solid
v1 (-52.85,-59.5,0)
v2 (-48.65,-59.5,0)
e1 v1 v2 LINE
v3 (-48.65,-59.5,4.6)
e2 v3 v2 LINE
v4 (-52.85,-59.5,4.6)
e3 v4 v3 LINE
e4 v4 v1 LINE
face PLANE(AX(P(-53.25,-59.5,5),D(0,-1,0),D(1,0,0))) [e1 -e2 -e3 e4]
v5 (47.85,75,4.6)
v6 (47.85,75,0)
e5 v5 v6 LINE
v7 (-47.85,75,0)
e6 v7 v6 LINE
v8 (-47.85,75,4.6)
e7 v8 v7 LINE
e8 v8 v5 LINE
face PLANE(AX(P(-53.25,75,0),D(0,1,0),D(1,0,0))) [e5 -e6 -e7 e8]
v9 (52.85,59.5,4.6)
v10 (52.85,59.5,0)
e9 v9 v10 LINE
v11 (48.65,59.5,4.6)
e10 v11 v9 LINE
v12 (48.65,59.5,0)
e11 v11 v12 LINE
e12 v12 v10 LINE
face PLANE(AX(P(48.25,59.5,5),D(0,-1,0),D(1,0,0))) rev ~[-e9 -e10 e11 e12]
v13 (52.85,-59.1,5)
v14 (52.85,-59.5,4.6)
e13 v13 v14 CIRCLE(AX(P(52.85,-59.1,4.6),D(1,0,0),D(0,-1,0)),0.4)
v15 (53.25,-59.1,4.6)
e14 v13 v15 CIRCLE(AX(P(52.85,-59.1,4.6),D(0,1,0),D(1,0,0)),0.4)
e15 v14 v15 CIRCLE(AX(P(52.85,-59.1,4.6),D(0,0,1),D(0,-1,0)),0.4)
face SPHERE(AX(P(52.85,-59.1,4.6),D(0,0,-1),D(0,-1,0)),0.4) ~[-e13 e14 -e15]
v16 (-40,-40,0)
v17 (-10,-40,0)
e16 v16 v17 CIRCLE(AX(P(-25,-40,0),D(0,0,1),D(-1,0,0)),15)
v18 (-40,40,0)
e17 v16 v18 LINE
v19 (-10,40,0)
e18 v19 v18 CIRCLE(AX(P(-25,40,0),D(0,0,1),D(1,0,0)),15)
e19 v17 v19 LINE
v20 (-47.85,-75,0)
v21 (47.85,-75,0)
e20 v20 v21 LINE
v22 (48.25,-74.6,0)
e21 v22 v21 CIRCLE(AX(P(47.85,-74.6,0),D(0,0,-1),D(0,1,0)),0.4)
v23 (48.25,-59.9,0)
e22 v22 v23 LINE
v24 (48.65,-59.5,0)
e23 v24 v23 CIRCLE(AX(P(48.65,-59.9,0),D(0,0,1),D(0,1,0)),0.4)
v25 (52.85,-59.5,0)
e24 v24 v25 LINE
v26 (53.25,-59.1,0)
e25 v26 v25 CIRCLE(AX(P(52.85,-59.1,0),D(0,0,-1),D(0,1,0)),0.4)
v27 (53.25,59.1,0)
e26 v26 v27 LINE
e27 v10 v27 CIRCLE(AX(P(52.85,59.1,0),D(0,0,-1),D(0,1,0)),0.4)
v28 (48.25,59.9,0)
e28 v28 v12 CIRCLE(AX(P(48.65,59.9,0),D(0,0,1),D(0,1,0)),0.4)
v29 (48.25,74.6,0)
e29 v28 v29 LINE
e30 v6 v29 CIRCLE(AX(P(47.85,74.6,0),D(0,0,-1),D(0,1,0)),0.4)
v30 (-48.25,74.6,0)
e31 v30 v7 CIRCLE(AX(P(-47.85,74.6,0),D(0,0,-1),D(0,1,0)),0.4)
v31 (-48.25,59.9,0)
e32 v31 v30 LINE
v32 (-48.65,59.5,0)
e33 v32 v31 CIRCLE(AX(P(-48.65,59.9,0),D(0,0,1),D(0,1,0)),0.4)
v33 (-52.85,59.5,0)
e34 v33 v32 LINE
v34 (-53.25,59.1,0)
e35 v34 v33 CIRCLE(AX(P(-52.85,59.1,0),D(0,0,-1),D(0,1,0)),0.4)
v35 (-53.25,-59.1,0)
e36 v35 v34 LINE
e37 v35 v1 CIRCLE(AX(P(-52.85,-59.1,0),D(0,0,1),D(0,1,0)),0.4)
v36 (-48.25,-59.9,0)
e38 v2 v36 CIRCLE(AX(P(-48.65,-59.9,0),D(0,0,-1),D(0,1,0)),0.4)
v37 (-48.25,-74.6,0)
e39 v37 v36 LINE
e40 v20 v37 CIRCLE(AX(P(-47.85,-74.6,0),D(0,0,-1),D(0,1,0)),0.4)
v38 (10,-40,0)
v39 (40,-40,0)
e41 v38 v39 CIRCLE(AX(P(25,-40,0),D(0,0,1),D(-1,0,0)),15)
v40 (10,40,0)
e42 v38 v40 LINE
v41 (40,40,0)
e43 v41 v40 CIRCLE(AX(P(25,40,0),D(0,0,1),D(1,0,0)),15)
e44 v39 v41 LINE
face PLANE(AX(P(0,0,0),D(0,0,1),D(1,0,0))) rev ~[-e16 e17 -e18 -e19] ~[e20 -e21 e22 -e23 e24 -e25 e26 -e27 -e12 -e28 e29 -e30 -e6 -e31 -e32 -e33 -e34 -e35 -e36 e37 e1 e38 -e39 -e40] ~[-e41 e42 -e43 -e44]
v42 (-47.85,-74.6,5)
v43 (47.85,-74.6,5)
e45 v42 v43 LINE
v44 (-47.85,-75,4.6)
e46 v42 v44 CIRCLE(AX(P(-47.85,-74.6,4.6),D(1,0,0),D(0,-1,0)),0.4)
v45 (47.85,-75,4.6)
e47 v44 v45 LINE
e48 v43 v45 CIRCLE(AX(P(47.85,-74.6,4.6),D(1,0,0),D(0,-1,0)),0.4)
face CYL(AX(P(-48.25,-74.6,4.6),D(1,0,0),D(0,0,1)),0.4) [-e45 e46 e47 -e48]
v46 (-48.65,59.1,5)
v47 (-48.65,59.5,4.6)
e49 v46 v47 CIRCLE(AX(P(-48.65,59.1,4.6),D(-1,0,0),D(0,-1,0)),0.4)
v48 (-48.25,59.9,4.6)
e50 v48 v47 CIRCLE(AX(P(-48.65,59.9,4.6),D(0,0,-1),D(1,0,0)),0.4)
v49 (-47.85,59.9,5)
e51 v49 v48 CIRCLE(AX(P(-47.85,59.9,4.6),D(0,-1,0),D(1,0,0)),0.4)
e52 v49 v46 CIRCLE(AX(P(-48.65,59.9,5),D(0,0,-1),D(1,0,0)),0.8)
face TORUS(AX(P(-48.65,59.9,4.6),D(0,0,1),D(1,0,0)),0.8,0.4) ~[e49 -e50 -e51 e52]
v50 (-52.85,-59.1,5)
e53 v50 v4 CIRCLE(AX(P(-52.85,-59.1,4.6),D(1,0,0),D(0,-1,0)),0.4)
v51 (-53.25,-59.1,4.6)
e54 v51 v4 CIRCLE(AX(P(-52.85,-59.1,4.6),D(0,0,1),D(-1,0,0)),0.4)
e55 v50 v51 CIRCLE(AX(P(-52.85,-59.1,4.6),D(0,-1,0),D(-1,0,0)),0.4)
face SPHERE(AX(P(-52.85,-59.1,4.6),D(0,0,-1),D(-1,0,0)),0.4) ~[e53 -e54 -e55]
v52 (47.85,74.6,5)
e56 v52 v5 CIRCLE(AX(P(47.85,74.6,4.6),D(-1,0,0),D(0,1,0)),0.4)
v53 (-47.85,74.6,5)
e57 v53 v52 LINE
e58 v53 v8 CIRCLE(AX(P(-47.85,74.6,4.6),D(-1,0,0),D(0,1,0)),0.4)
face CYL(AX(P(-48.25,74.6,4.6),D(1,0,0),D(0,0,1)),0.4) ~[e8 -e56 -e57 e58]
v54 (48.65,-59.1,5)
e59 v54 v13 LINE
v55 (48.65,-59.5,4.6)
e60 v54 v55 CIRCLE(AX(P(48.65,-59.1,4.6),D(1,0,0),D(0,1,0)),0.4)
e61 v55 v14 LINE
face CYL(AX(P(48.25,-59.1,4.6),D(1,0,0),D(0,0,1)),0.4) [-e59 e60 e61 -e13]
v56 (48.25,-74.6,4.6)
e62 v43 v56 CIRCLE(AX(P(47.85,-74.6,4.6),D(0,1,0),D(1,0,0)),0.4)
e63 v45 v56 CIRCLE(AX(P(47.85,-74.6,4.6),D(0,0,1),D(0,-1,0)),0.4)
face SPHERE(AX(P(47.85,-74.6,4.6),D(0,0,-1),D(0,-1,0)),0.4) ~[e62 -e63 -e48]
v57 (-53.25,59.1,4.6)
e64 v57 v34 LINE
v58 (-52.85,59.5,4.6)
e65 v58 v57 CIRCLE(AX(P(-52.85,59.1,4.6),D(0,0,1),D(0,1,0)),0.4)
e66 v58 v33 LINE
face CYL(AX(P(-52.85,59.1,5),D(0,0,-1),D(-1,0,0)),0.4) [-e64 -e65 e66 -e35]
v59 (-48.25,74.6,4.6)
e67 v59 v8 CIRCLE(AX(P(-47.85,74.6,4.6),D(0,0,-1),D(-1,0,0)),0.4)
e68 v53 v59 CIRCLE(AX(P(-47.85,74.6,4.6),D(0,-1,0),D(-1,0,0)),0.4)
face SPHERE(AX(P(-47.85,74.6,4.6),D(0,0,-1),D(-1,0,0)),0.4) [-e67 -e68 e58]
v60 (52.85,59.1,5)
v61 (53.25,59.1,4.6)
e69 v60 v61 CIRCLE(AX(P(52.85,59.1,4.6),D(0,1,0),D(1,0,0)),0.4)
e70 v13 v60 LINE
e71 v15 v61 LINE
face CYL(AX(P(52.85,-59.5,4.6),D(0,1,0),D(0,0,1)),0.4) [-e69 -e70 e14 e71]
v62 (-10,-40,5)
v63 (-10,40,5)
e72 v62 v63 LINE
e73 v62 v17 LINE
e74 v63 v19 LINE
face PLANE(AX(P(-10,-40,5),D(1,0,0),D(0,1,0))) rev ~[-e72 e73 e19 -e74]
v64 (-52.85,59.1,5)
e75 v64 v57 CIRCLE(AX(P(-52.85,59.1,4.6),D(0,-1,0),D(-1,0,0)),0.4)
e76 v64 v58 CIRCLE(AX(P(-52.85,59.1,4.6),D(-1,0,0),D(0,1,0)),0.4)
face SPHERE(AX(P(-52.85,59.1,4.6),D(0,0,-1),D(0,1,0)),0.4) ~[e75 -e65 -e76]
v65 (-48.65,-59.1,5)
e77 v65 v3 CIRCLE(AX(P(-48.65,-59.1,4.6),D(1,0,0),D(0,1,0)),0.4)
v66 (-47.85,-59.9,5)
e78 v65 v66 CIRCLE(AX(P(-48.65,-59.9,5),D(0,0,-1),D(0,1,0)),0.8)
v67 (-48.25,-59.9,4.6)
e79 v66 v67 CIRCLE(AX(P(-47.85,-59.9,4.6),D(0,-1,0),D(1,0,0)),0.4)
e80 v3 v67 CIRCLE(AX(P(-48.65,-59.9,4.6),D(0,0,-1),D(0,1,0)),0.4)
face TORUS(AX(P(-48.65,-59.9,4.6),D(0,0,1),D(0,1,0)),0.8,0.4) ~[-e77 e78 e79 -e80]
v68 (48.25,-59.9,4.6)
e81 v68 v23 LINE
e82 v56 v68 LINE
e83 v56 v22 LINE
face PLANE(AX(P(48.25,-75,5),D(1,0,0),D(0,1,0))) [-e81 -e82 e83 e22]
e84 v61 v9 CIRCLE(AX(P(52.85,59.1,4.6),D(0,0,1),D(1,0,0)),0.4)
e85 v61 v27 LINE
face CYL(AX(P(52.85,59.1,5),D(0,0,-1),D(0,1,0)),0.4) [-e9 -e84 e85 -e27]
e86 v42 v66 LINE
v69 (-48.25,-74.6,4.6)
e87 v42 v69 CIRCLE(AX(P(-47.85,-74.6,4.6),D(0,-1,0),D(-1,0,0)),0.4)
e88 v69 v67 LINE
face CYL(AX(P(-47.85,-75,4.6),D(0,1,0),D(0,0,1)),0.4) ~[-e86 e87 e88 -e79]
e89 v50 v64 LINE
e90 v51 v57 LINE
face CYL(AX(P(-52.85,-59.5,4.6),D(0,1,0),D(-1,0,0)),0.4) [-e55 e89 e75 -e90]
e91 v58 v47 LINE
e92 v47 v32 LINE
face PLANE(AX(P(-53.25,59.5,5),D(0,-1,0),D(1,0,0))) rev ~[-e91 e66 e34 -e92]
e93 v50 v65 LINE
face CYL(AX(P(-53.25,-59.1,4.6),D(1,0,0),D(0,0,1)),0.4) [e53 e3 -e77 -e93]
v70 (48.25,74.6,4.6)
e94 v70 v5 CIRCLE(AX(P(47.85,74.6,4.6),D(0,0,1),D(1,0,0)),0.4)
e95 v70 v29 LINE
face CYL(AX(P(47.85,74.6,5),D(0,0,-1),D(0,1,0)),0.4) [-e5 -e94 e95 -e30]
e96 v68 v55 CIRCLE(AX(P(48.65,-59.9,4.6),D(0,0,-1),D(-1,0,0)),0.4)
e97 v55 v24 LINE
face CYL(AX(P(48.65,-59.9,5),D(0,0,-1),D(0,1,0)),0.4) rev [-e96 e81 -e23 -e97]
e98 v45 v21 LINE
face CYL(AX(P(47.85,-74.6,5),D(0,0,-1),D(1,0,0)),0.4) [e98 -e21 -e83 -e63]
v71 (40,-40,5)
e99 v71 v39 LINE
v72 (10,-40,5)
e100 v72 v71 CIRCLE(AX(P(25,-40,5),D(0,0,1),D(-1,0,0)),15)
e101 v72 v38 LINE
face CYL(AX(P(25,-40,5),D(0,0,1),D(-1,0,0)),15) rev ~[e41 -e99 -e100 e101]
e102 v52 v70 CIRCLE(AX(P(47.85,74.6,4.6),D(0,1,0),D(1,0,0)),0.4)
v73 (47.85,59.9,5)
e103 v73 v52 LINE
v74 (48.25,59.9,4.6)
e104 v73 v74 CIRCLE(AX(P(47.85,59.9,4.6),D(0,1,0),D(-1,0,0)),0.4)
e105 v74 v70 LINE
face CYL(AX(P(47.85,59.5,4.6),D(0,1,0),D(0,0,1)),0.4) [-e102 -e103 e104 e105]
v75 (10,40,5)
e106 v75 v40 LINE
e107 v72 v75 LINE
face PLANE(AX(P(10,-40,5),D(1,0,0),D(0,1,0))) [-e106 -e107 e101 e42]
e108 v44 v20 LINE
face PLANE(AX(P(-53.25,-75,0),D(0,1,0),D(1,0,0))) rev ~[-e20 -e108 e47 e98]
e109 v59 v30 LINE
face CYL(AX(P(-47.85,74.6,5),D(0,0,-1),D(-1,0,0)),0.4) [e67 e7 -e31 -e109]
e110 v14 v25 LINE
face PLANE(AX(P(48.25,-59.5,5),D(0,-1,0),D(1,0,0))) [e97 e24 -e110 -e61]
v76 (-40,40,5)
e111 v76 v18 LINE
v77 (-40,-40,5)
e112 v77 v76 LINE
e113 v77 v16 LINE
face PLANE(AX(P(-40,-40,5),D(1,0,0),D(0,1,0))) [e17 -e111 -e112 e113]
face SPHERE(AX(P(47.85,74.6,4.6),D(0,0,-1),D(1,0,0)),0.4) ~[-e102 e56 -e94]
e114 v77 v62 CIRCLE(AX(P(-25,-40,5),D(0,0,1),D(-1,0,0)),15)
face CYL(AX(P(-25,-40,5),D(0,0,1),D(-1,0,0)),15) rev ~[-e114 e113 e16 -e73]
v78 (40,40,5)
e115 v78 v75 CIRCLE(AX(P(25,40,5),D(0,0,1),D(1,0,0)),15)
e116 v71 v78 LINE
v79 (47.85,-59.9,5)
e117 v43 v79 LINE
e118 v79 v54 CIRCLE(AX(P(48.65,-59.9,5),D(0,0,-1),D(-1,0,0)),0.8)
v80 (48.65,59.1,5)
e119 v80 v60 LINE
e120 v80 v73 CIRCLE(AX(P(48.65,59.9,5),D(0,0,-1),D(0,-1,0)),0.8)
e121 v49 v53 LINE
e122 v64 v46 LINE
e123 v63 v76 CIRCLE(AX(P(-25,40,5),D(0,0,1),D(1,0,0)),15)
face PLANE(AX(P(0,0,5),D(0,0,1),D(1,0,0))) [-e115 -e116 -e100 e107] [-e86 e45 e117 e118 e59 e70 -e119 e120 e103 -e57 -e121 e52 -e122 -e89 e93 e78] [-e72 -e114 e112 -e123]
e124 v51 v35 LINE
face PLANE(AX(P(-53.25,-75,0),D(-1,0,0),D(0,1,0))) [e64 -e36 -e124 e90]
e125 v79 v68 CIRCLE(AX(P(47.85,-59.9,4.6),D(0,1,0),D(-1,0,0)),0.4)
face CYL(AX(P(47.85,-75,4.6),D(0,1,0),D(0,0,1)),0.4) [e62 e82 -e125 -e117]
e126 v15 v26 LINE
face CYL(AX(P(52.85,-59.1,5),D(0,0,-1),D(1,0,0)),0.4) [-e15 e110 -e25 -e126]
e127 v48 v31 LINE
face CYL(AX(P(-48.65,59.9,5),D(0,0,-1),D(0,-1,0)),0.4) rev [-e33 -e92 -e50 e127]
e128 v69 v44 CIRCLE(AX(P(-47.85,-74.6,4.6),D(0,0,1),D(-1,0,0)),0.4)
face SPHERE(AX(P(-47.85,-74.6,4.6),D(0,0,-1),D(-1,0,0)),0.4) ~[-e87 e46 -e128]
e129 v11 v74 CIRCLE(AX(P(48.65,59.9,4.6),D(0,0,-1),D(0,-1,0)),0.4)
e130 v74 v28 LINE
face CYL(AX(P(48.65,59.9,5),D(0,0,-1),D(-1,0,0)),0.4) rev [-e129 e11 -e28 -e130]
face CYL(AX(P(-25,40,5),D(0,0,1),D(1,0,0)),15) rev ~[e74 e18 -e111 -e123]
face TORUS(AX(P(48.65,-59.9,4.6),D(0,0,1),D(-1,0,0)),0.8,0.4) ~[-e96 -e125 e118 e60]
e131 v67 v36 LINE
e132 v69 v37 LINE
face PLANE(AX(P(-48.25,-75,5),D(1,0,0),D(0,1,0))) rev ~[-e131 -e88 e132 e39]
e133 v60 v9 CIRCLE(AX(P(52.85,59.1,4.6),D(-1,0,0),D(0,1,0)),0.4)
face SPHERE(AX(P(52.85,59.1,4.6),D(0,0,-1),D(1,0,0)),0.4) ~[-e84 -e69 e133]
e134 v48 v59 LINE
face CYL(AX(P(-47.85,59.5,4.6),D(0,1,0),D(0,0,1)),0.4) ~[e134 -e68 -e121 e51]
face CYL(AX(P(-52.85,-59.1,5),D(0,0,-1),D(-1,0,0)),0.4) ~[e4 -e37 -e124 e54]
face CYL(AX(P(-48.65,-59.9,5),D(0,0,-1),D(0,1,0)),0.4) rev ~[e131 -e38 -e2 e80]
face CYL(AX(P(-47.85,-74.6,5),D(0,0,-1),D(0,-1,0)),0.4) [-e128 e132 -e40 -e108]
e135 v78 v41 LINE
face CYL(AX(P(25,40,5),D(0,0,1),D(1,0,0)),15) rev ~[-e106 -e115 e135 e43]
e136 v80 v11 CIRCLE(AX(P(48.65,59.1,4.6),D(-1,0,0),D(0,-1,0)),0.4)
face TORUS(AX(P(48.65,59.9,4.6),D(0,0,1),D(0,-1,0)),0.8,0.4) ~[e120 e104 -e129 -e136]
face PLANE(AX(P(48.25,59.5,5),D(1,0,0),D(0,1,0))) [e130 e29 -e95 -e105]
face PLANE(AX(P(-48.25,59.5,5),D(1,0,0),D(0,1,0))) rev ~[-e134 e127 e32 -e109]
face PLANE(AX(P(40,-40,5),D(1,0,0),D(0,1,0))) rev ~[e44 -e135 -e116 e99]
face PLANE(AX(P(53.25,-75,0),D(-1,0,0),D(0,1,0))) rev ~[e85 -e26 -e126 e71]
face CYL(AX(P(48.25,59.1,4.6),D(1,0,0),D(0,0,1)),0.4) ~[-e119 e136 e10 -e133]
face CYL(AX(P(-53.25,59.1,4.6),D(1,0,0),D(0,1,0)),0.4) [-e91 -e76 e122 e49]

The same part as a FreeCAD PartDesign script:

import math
import FreeCAD as App
import Part
import Sketcher
from FreeCAD import Vector


def edges_at(feature, points):
    """Names of the edges that pass closest to the given points."""
    edges = feature.Shape.Edges
    near = lambda p: min(range(len(edges)), key=lambda i: edges[i].distToShape(Part.Vertex(*p))[0])
    return sorted({f"Edge{near(p) + 1}" for p in points})


def add_polygon(sketch, points):
    """Adds a closed chain of lines whose ends are joined by coincident constraints."""
    first, n = sketch.GeometryCount, len(points)
    for a, b in zip(points, points[1:] + points[:1]):
        sketch.addGeometry(Part.LineSegment(App.Vector(*a, 0), App.Vector(*b, 0)), False)
    for i in range(n):
        sketch.addConstraint(Sketcher.Constraint("Coincident", first + i, 2, first + (i + 1) % n, 1))

doc = App.newDocument("Part")
body = doc.addObject("PartDesign::Body", "Body")

sketch1 = body.newObject("Sketcher::SketchObject", "Sketch")
sketch1.AttachmentSupport = (doc.getObject("XY_Plane"), [""])
sketch1.MapMode = "FlatFace"
add_polygon(sketch1, [(-53.25, 75), (-53.25, -75), (53.25, -75), (53.25, 75)])
sketch1.addConstraint([
    Sketcher.Constraint("Vertical", 0),
    Sketcher.Constraint("Horizontal", 1),
    Sketcher.Constraint("Vertical", 2),
    Sketcher.Constraint("Horizontal", 3),
    Sketcher.Constraint("Symmetric", 0, 2, 2, 2, -1, 1),
    Sketcher.Constraint("DistanceY", 0, 2, 0, 1, 150.0),
    Sketcher.Constraint("DistanceX", 1, 1, 1, 2, 106.5),
])
pad1 = body.newObject("PartDesign::Pad", "Pad")
pad1.Profile = sketch1
pad1.Length = 5

sketch2 = body.newObject("Sketcher::SketchObject", "Sketch001")
sketch2.AttachmentSupport = (doc.getObject("XY_Plane"), [""])
sketch2.MapMode = "FlatFace"
sketch2.AttachmentOffset = App.Placement(Vector(0, 0, 5), App.Rotation())
add_polygon(sketch2, [(-53.25, 75), (-53.25, 59.5), (-48.25, 59.5), (-48.25, 75)])
add_polygon(sketch2, [(48.25, 75), (48.25, 59.5), (53.25, 59.5), (53.25, 75)])
add_polygon(sketch2, [(48.25, -59.5), (48.25, -75), (53.25, -75), (53.25, -59.5)])
add_polygon(sketch2, [(-53.25, -59.5), (-53.25, -75), (-48.25, -75), (-48.25, -59.5)])
sketch2.addConstraint([
    Sketcher.Constraint("Vertical", 0),
    Sketcher.Constraint("Horizontal", 1),
    Sketcher.Constraint("Vertical", 2),
    Sketcher.Constraint("Horizontal", 3),
    Sketcher.Constraint("Vertical", 4),
    Sketcher.Constraint("Horizontal", 5),
    Sketcher.Constraint("Vertical", 6),
    Sketcher.Constraint("Horizontal", 7),
    Sketcher.Constraint("Vertical", 8),
    Sketcher.Constraint("Horizontal", 9),
    Sketcher.Constraint("Vertical", 10),
    Sketcher.Constraint("Horizontal", 11),
    Sketcher.Constraint("Vertical", 12),
    Sketcher.Constraint("Horizontal", 13),
    Sketcher.Constraint("Vertical", 14),
    Sketcher.Constraint("Horizontal", 15),
    Sketcher.Constraint("Symmetric", 2, 2, 8, 2, -1, 1),
    Sketcher.Constraint("Symmetric", 0, 2, 10, 2, -1, 1),
    Sketcher.Constraint("Symmetric", 6, 2, 12, 2, -1, 1),
    Sketcher.Constraint("Symmetric", 4, 2, 14, 2, -1, 1),
    Sketcher.Constraint("Symmetric", 1, 2, 4, 2, -2),
    Sketcher.Constraint("Symmetric", 3, 2, 6, 2, -2),
    Sketcher.Constraint("DistanceX", 1, 1, 1, 2, 5.0),
    Sketcher.Constraint("DistanceY", 0, 2, 0, 1, 15.5),
    Sketcher.Constraint("DistanceY", -1, 1, 2, 2, 75.0),
    Sketcher.Constraint("DistanceX", 1, 2, 4, 2, 96.5),
])
pocket1 = body.newObject("PartDesign::Pocket", "Pocket")
pocket1.Profile = sketch2
pocket1.Length = 5
doc.recompute()

fillet = body.newObject("PartDesign::Fillet", "Fillet")
fillet.Base = (pocket1, edges_at(pocket1, [
    (-48.25, 75, 2.5),
    (-48.25, 59.5, 2.5),
    (-53.25, 59.5, 2.5),
    (48.25, 75, 2.5),
    (48.25, 59.5, 2.5),
    (53.25, 59.5, 2.5),
    (53.25, -59.5, 2.5),
    (48.25, -59.5, 2.5),
    (48.25, -75, 2.5),
    (-48.25, -75, 2.5),
    (-48.25, -59.5, 2.5),
    (-53.25, -59.5, 2.5),
    (-48.25, 67.25, 5),
    (-50.75, 59.5, 5),
    (-53.25, 0, 5),
    (-50.75, -59.5, 5),
    (-48.25, -67.25, 5),
    (0, -75, 5),
    (48.25, -67.25, 5),
    (50.75, -59.5, 5),
    (53.25, 0, 5),
    (50.75, 59.5, 5),
    (48.25, 67.25, 5),
    (0, 75, 5),
]))
fillet.Radius = 0.4

sketch3 = body.newObject("Sketcher::SketchObject", "Sketch002")
sketch3.AttachmentSupport = (doc.getObject("XY_Plane"), [""])
sketch3.MapMode = "FlatFace"
sketch3.AttachmentOffset = App.Placement(Vector(0, 0, 5), App.Rotation())
sketch3.addGeometry([
    Part.ArcOfCircle(Part.Circle(Vector(-25, -40, 0), Vector(0, 0, 1), 15), math.radians(180), math.radians(360)),
    Part.LineSegment(Vector(-10, -40, 0), Vector(-10, 40, 0)),
    Part.ArcOfCircle(Part.Circle(Vector(-25, 40, 0), Vector(0, 0, 1), 15), math.radians(0), math.radians(180)),
    Part.LineSegment(Vector(-40, 40, 0), Vector(-40, -40, 0)),
    Part.ArcOfCircle(Part.Circle(Vector(25, -40, 0), Vector(0, 0, 1), 15), math.radians(180), math.radians(360)),
    Part.LineSegment(Vector(40, -40, 0), Vector(40, 40, 0)),
    Part.ArcOfCircle(Part.Circle(Vector(25, 40, 0), Vector(0, 0, 1), 15), math.radians(0), math.radians(180)),
    Part.LineSegment(Vector(10, 40, 0), Vector(10, -40, 0)),
], False)
sketch3.addConstraint([
    Sketcher.Constraint("Tangent", 0, 2, 1, 1),
    Sketcher.Constraint("Tangent", 1, 2, 2, 1),
    Sketcher.Constraint("Tangent", 2, 2, 3, 1),
    Sketcher.Constraint("Tangent", 3, 2, 0, 1),
    Sketcher.Constraint("Tangent", 4, 2, 5, 1),
    Sketcher.Constraint("Tangent", 5, 2, 6, 1),
    Sketcher.Constraint("Tangent", 6, 2, 7, 1),
    Sketcher.Constraint("Tangent", 7, 2, 4, 1),
    Sketcher.Constraint("Vertical", 1),
    Sketcher.Constraint("Vertical", 3),
    Sketcher.Constraint("Vertical", 5),
    Sketcher.Constraint("Vertical", 7),
    Sketcher.Constraint("Equal", 2, 4),
    Sketcher.Constraint("Symmetric", 2, 3, 4, 3, -1, 1),
    Sketcher.Constraint("Horizontal", 0, 3, 4, 3),
    Sketcher.Constraint("Horizontal", 2, 3, 6, 3),
    Sketcher.Constraint("Radius", 0, 15.0),
    Sketcher.Constraint("DistanceY", 1, 1, 1, 2, 80.0),
    Sketcher.Constraint("DistanceX", 0, 3, -1, 1, 25.0),
])
pocket2 = body.newObject("PartDesign::Pocket", "Pocket001")
pocket2.Profile = sketch3
pocket2.Length = 5

doc.recompute()
